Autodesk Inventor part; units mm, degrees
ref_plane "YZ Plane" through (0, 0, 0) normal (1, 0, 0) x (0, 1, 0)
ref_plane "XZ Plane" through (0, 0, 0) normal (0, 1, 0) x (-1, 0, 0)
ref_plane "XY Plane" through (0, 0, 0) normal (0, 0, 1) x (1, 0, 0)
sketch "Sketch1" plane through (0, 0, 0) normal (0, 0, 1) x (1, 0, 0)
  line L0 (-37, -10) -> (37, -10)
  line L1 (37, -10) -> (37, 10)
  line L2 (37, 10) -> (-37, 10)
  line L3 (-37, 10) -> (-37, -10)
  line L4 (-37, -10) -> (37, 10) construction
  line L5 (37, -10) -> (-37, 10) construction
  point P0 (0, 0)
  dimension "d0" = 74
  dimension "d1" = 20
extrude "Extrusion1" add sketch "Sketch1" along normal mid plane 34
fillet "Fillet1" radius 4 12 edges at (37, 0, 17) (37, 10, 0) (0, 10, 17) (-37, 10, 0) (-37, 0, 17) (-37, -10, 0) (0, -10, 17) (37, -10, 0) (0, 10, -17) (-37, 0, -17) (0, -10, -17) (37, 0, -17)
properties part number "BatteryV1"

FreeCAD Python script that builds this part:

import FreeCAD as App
import Part
import Sketcher
from FreeCAD import Vector
Q = App.Units.Quantity


def add_polygon(sketch, points):
    """Adds a closed chain of lines whose ends are joined by coincident constraints."""
    first, n = sketch.GeometryCount, len(points)
    for a, b in zip(points, points[1:] + points[:1]):
        sketch.addGeometry(Part.LineSegment(App.Vector(*a, 0), App.Vector(*b, 0)), False)
    for i in range(n):
        sketch.addConstraint(Sketcher.Constraint("Coincident", first + i, 2, first + (i + 1) % n, 1))

doc = App.newDocument("Part")
body = doc.addObject("PartDesign::Body", "Body")

# Sketch on XY plane
sketch1 = doc.addObject("Sketcher::SketchObject", "Sketch")
body.addObject(sketch1)
sketch1.AttachmentSupport = (doc.XY_Plane, [""])
sketch1.MapMode = "FlatFace"
add_polygon(sketch1, [(-37, 10), (-37, -10), (37, -10), (37, 10)])  # lines 0-3
sketch1.addConstraint(Sketcher.Constraint("Vertical", 0))
sketch1.addConstraint(Sketcher.Constraint("Horizontal", 1))
sketch1.addConstraint(Sketcher.Constraint("Vertical", 2))
sketch1.addConstraint(Sketcher.Constraint("Horizontal", 3))
sketch1.addConstraint(Sketcher.Constraint("Symmetric", 0, 2, 2, 2, -1, 1))
sketch1.addConstraint(Sketcher.Constraint("DistanceX", 1, 1, 1, 2, Q("74 mm")))
sketch1.addConstraint(Sketcher.Constraint("DistanceY", 0, 2, 0, 1, Q("20 mm")))
pad1 = doc.addObject("PartDesign::Pad", "Pad")
body.addObject(pad1)
pad1.Profile = sketch1
pad1.Length = 34
pad1.Midplane = True
doc.recompute()

fillet = doc.addObject("PartDesign::Fillet", "Fillet")
body.addObject(fillet)
fillet.Base = (pad1, ["Edge1"])
fillet.UseAllEdges = True
fillet.Radius = 4

doc.recompute()
